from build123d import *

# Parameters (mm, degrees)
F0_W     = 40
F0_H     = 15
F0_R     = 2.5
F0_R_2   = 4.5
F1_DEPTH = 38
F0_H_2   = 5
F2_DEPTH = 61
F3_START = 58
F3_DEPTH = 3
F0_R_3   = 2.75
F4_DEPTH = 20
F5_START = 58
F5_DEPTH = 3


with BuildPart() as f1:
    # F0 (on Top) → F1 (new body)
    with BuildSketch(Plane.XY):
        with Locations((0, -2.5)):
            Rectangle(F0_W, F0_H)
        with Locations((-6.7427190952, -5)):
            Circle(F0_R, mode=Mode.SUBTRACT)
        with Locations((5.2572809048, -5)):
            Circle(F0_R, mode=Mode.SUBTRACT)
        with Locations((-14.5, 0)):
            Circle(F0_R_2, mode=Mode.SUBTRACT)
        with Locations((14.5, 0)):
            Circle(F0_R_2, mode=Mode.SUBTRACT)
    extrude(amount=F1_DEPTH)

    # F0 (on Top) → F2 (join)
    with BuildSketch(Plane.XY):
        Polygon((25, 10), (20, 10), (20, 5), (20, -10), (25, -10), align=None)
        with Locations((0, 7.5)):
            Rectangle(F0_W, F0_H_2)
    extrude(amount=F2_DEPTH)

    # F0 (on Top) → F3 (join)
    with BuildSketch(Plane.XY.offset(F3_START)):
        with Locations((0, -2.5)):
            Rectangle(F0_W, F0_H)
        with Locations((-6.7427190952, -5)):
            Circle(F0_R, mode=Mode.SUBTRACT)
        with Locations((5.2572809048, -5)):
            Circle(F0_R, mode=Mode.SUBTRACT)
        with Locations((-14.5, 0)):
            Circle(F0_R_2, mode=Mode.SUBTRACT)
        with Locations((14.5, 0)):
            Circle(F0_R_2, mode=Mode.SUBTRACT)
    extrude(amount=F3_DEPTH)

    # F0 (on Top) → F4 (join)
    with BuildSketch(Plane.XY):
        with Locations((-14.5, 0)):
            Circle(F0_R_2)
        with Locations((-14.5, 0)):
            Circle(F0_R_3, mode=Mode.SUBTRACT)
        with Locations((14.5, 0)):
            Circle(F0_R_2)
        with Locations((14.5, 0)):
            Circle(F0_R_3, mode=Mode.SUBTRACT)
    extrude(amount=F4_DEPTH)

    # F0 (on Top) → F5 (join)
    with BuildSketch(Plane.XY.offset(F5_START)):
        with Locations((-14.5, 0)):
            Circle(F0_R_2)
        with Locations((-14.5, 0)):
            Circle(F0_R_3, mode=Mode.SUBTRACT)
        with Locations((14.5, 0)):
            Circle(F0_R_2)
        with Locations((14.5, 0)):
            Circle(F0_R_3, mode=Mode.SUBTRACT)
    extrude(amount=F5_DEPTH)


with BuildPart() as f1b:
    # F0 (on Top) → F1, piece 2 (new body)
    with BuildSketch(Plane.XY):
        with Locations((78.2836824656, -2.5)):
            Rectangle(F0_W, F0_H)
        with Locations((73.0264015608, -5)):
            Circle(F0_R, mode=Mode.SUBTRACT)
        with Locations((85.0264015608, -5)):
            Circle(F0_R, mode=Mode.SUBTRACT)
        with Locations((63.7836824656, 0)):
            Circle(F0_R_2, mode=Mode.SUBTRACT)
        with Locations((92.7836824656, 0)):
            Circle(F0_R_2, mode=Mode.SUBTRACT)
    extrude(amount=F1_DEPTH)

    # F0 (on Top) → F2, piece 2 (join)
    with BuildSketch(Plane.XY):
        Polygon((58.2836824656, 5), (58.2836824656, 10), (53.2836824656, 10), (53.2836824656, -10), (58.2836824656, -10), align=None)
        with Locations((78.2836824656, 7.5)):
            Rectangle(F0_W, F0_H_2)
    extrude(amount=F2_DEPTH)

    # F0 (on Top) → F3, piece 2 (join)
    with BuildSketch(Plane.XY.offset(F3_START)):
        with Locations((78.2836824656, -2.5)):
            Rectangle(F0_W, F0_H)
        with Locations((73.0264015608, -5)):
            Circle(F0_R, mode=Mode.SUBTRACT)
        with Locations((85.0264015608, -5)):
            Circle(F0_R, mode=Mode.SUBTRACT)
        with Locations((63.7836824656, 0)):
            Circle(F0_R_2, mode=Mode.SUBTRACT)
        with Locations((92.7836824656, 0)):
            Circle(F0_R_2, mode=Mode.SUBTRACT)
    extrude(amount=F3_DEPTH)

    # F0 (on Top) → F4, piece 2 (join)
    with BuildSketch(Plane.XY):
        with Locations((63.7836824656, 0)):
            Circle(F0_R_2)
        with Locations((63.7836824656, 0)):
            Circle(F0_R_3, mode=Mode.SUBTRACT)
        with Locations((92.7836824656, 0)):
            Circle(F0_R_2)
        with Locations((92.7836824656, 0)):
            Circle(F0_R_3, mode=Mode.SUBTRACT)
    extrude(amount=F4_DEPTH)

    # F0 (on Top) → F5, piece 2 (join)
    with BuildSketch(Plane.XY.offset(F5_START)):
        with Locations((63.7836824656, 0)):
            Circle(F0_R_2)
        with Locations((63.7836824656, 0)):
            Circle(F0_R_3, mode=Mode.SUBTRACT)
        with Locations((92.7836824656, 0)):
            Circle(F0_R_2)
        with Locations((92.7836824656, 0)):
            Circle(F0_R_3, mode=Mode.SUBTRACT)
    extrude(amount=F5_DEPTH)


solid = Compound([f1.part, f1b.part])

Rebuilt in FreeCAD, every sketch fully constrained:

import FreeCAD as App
import Part
import Sketcher
from FreeCAD import Vector
Q = App.Units.Quantity


def add_polygon(sketch, points):
    """Adds a closed chain of lines whose ends are joined by coincident constraints."""
    first, n = sketch.GeometryCount, len(points)
    for a, b in zip(points, points[1:] + points[:1]):
        sketch.addGeometry(Part.LineSegment(App.Vector(*a, 0), App.Vector(*b, 0)), False)
    for i in range(n):
        sketch.addConstraint(Sketcher.Constraint("Coincident", first + i, 2, first + (i + 1) % n, 1))

doc = App.newDocument("Part")
body = doc.addObject("PartDesign::Body", "Body")

sketch1 = body.newObject("Sketcher::SketchObject", "Sketch")
sketch1.AttachmentSupport = (doc.getObject("XY_Plane"), [""])
sketch1.MapMode = "FlatFace"
add_polygon(sketch1, [(-20, 5), (-20, -10), (20, -10), (20, 5)])
sketch1.addGeometry(Part.Circle(Vector(-6.742719, -5, 0), Vector(0, 0, 1), 2.5), False)
sketch1.addGeometry(Part.Circle(Vector(5.257281, -5, 0), Vector(0, 0, 1), 2.5), False)
sketch1.addGeometry(Part.Circle(Vector(-14.5, 0, 0), Vector(0, 0, 1), 4.5), False)
sketch1.addGeometry(Part.Circle(Vector(14.5, 0, 0), Vector(0, 0, 1), 4.5), False)
sketch1.addConstraint(Sketcher.Constraint("Vertical", 0))
sketch1.addConstraint(Sketcher.Constraint("Horizontal", 1))
sketch1.addConstraint(Sketcher.Constraint("Vertical", 2))
sketch1.addConstraint(Sketcher.Constraint("Horizontal", 3))
sketch1.addConstraint(Sketcher.Constraint("Equal", 4, 5))
sketch1.addConstraint(Sketcher.Constraint("Equal", 6, 7))
sketch1.addConstraint(Sketcher.Constraint("Symmetric", 6, 3, 7, 3, -1, 1))
sketch1.addConstraint(Sketcher.Constraint("PointOnObject", 6, 3, -1))
sketch1.addConstraint(Sketcher.Constraint("Horizontal", 4, 3, 5, 3))
sketch1.addConstraint(Sketcher.Constraint("Diameter", 4, Q("5 mm")))
sketch1.addConstraint(Sketcher.Constraint("Diameter", 6, Q("9 mm")))
sketch1.addConstraint(Sketcher.Constraint("DistanceX", 1, 1, 1, 2, Q("40 mm")))
sketch1.addConstraint(Sketcher.Constraint("DistanceY", 0, 2, 0, 1, Q("15 mm")))
sketch1.addConstraint(Sketcher.Constraint("DistanceY", 4, 3, -1, 1, Q("5 mm")))
sketch1.addConstraint(Sketcher.Constraint("DistanceX", 0, 2, -1, 1, Q("20 mm")))
sketch1.addConstraint(Sketcher.Constraint("DistanceY", 0, 2, -1, 1, Q("10 mm")))
sketch1.addConstraint(Sketcher.Constraint("DistanceX", 4, 3, 5, 3, Q("12 mm")))
sketch1.addConstraint(Sketcher.Constraint("DistanceX", 6, 3, 7, 3, Q("29 mm")))
sketch1.addConstraint(Sketcher.Constraint("DistanceX", 4, 3, -1, 1, Q("6.742719 mm")))
pad1 = body.newObject("PartDesign::Pad", "Pad")
pad1.Profile = sketch1
pad1.Length = 38

sketch2 = body.newObject("Sketcher::SketchObject", "Sketch001")
sketch2.AttachmentSupport = (doc.getObject("XY_Plane"), [""])
sketch2.MapMode = "FlatFace"
add_polygon(sketch2, [(25, 10), (-20, 10), (-20, 5), (20, 5), (20, -10), (25, -10)])
sketch2.addConstraint(Sketcher.Constraint("Horizontal", 0))
sketch2.addConstraint(Sketcher.Constraint("Vertical", 1))
sketch2.addConstraint(Sketcher.Constraint("Horizontal", 2))
sketch2.addConstraint(Sketcher.Constraint("Vertical", 3))
sketch2.addConstraint(Sketcher.Constraint("Horizontal", 4))
sketch2.addConstraint(Sketcher.Constraint("Vertical", 5))
sketch2.addConstraint(Sketcher.Constraint("Symmetric", 0, 2, 3, 2, -1, 1))
sketch2.addConstraint(Sketcher.Constraint("Equal", 4, 1))
sketch2.addConstraint(Sketcher.Constraint("DistanceX", 0, 2, 0, 1, Q("45 mm")))
sketch2.addConstraint(Sketcher.Constraint("DistanceX", 2, 1, 2, 2, Q("40 mm")))
sketch2.addConstraint(Sketcher.Constraint("DistanceY", 3, 2, 3, 1, Q("15 mm")))
pad2 = body.newObject("PartDesign::Pad", "Pad001")
pad2.Profile = sketch2
pad2.Length = 61

sketch3 = body.newObject("Sketcher::SketchObject", "Sketch002")
sketch3.AttachmentSupport = (doc.getObject("XY_Plane"), [""])
sketch3.MapMode = "FlatFace"
sketch3.AttachmentOffset = App.Placement(Vector(0, 0, 58), App.Rotation())
add_polygon(sketch3, [(-20, 5), (-20, -10), (20, -10), (20, 5)])
sketch3.addGeometry(Part.Circle(Vector(-6.742719, -5, 0), Vector(0, 0, 1), 2.5), False)
sketch3.addGeometry(Part.Circle(Vector(5.257281, -5, 0), Vector(0, 0, 1), 2.5), False)
sketch3.addGeometry(Part.Circle(Vector(-14.5, 0, 0), Vector(0, 0, 1), 4.5), False)
sketch3.addGeometry(Part.Circle(Vector(14.5, 0, 0), Vector(0, 0, 1), 4.5), False)
sketch3.addConstraint(Sketcher.Constraint("Vertical", 0))
sketch3.addConstraint(Sketcher.Constraint("Horizontal", 1))
sketch3.addConstraint(Sketcher.Constraint("Vertical", 2))
sketch3.addConstraint(Sketcher.Constraint("Horizontal", 3))
sketch3.addConstraint(Sketcher.Constraint("Equal", 4, 5))
sketch3.addConstraint(Sketcher.Constraint("Equal", 6, 7))
sketch3.addConstraint(Sketcher.Constraint("Symmetric", 6, 3, 7, 3, -1, 1))
sketch3.addConstraint(Sketcher.Constraint("PointOnObject", 6, 3, -1))
sketch3.addConstraint(Sketcher.Constraint("Horizontal", 4, 3, 5, 3))
sketch3.addConstraint(Sketcher.Constraint("Diameter", 4, Q("5 mm")))
sketch3.addConstraint(Sketcher.Constraint("Diameter", 6, Q("9 mm")))
sketch3.addConstraint(Sketcher.Constraint("DistanceX", 1, 1, 1, 2, Q("40 mm")))
sketch3.addConstraint(Sketcher.Constraint("DistanceY", 0, 2, 0, 1, Q("15 mm")))
sketch3.addConstraint(Sketcher.Constraint("DistanceY", 4, 3, -1, 1, Q("5 mm")))
sketch3.addConstraint(Sketcher.Constraint("DistanceX", 0, 2, -1, 1, Q("20 mm")))
sketch3.addConstraint(Sketcher.Constraint("DistanceY", 0, 2, -1, 1, Q("10 mm")))
sketch3.addConstraint(Sketcher.Constraint("DistanceX", 4, 3, 5, 3, Q("12 mm")))
sketch3.addConstraint(Sketcher.Constraint("DistanceX", 6, 3, 7, 3, Q("29 mm")))
sketch3.addConstraint(Sketcher.Constraint("DistanceX", 4, 3, -1, 1, Q("6.742719 mm")))
pad3 = body.newObject("PartDesign::Pad", "Pad002")
pad3.Profile = sketch3
pad3.Length = 3

sketch4 = body.newObject("Sketcher::SketchObject", "Sketch003")
sketch4.AttachmentSupport = (doc.getObject("XY_Plane"), [""])
sketch4.MapMode = "FlatFace"
sketch4.addGeometry(Part.Circle(Vector(-14.5, 0, 0), Vector(0, 0, 1), 4.5), False)
sketch4.addGeometry(Part.Circle(Vector(-14.5, 0, 0), Vector(0, 0, 1), 2.75), False)
sketch4.addGeometry(Part.Circle(Vector(14.5, 0, 0), Vector(0, 0, 1), 4.5), False)
sketch4.addGeometry(Part.Circle(Vector(14.5, 0, 0), Vector(0, 0, 1), 2.75), False)
sketch4.addConstraint(Sketcher.Constraint("Coincident", 1, 3, 0, 3))
sketch4.addConstraint(Sketcher.Constraint("Coincident", 3, 3, 2, 3))
sketch4.addConstraint(Sketcher.Constraint("Equal", 0, 2))
sketch4.addConstraint(Sketcher.Constraint("Equal", 1, 3))
sketch4.addConstraint(Sketcher.Constraint("Symmetric", 0, 3, 2, 3, -1, 1))
sketch4.addConstraint(Sketcher.Constraint("PointOnObject", 0, 3, -1))
sketch4.addConstraint(Sketcher.Constraint("Diameter", 0, Q("9 mm")))
sketch4.addConstraint(Sketcher.Constraint("Diameter", 1, Q("5.5 mm")))
sketch4.addConstraint(Sketcher.Constraint("DistanceX", 0, 3, 2, 3, Q("29 mm")))
pad4 = body.newObject("PartDesign::Pad", "Pad003")
pad4.Profile = sketch4
pad4.Length = 20

sketch5 = body.newObject("Sketcher::SketchObject", "Sketch004")
sketch5.AttachmentSupport = (doc.getObject("XY_Plane"), [""])
sketch5.MapMode = "FlatFace"
sketch5.AttachmentOffset = App.Placement(Vector(0, 0, 58), App.Rotation())
sketch5.addGeometry(Part.Circle(Vector(-14.5, 0, 0), Vector(0, 0, 1), 4.5), False)
sketch5.addGeometry(Part.Circle(Vector(-14.5, 0, 0), Vector(0, 0, 1), 2.75), False)
sketch5.addGeometry(Part.Circle(Vector(14.5, 0, 0), Vector(0, 0, 1), 4.5), False)
sketch5.addGeometry(Part.Circle(Vector(14.5, 0, 0), Vector(0, 0, 1), 2.75), False)
sketch5.addConstraint(Sketcher.Constraint("Coincident", 1, 3, 0, 3))
sketch5.addConstraint(Sketcher.Constraint("Coincident", 3, 3, 2, 3))
sketch5.addConstraint(Sketcher.Constraint("Equal", 0, 2))
sketch5.addConstraint(Sketcher.Constraint("Equal", 1, 3))
sketch5.addConstraint(Sketcher.Constraint("Symmetric", 0, 3, 2, 3, -1, 1))
sketch5.addConstraint(Sketcher.Constraint("PointOnObject", 0, 3, -1))
sketch5.addConstraint(Sketcher.Constraint("Diameter", 0, Q("9 mm")))
sketch5.addConstraint(Sketcher.Constraint("Diameter", 1, Q("5.5 mm")))
sketch5.addConstraint(Sketcher.Constraint("DistanceX", 0, 3, 2, 3, Q("29 mm")))
pad5 = body.newObject("PartDesign::Pad", "Pad004")
pad5.Profile = sketch5
pad5.Length = 3
body2 = doc.addObject("PartDesign::Body", "Body001")

sketch6 = body2.newObject("Sketcher::SketchObject", "Sketch005")
sketch6.AttachmentSupport = (doc.getObject("XY_Plane001"), [""])
sketch6.MapMode = "FlatFace"
add_polygon(sketch6, [(58.283682, 5), (58.283682, -10), (98.283682, -10), (98.283682, 5)])
sketch6.addGeometry(Part.Circle(Vector(73.026402, -5, 0), Vector(0, 0, 1), 2.5), False)
sketch6.addGeometry(Part.Circle(Vector(85.026402, -5, 0), Vector(0, 0, 1), 2.5), False)
sketch6.addGeometry(Part.Circle(Vector(63.783682, 0, 0), Vector(0, 0, 1), 4.5), False)
sketch6.addGeometry(Part.Circle(Vector(92.783682, 0, 0), Vector(0, 0, 1), 4.5), False)
sketch6.addConstraint(Sketcher.Constraint("Vertical", 0))
sketch6.addConstraint(Sketcher.Constraint("Horizontal", 1))
sketch6.addConstraint(Sketcher.Constraint("Vertical", 2))
sketch6.addConstraint(Sketcher.Constraint("Horizontal", 3))
sketch6.addConstraint(Sketcher.Constraint("Equal", 4, 5))
sketch6.addConstraint(Sketcher.Constraint("Equal", 6, 7))
sketch6.addConstraint(Sketcher.Constraint("PointOnObject", 6, 3, -1))
sketch6.addConstraint(Sketcher.Constraint("PointOnObject", 7, 3, -1))
sketch6.addConstraint(Sketcher.Constraint("Horizontal", 4, 3, 5, 3))
sketch6.addConstraint(Sketcher.Constraint("Diameter", 4, Q("5 mm")))
sketch6.addConstraint(Sketcher.Constraint("Diameter", 6, Q("9 mm")))
sketch6.addConstraint(Sketcher.Constraint("DistanceX", 1, 1, 1, 2, Q("40 mm")))
sketch6.addConstraint(Sketcher.Constraint("DistanceY", 0, 2, 0, 1, Q("15 mm")))
sketch6.addConstraint(Sketcher.Constraint("DistanceY", 4, 3, -1, 1, Q("5 mm")))
sketch6.addConstraint(Sketcher.Constraint("DistanceY", 0, 2, -1, 1, Q("10 mm")))
sketch6.addConstraint(Sketcher.Constraint("DistanceX", 4, 3, 5, 3, Q("12 mm")))
sketch6.addConstraint(Sketcher.Constraint("DistanceX", 6, 3, 7, 3, Q("29 mm")))
sketch6.addConstraint(Sketcher.Constraint("DistanceX", 0, 2, 6, 3, Q("5.5 mm")))
sketch6.addConstraint(Sketcher.Constraint("DistanceX", -1, 1, 4, 3, Q("73.026402 mm")))
sketch6.addConstraint(Sketcher.Constraint("DistanceX", 6, 3, 4, 3, Q("9.242719 mm")))
pad6 = body2.newObject("PartDesign::Pad", "Pad005")
pad6.Profile = sketch6
pad6.Length = 38

sketch7 = body2.newObject("Sketcher::SketchObject", "Sketch006")
sketch7.AttachmentSupport = (doc.getObject("XY_Plane001"), [""])
sketch7.MapMode = "FlatFace"
add_polygon(sketch7, [(53.283682, 10), (53.283682, -10), (58.283682, -10), (58.283682, 5), (98.283682, 5), (98.283682, 10)])
sketch7.addConstraint(Sketcher.Constraint("Vertical", 0))
sketch7.addConstraint(Sketcher.Constraint("Horizontal", 1))
sketch7.addConstraint(Sketcher.Constraint("Vertical", 2))
sketch7.addConstraint(Sketcher.Constraint("Horizontal", 3))
sketch7.addConstraint(Sketcher.Constraint("Vertical", 4))
sketch7.addConstraint(Sketcher.Constraint("Horizontal", 5))
sketch7.addConstraint(Sketcher.Constraint("Equal", 1, 4))
sketch7.addConstraint(Sketcher.Constraint("DistanceX", 1, 1, 1, 2, Q("5 mm")))
sketch7.addConstraint(Sketcher.Constraint("DistanceX", 3, 1, 3, 2, Q("40 mm")))
sketch7.addConstraint(Sketcher.Constraint("DistanceY", 0, 2, 0, 1, Q("20 mm")))
sketch7.addConstraint(Sketcher.Constraint("DistanceY", 0, 2, -1, 1, Q("10 mm")))
sketch7.addConstraint(Sketcher.Constraint("DistanceX", -1, 1, 0, 2, Q("53.283682 mm")))
pad7 = body2.newObject("PartDesign::Pad", "Pad006")
pad7.Profile = sketch7
pad7.Length = 61

sketch8 = body2.newObject("Sketcher::SketchObject", "Sketch007")
sketch8.AttachmentSupport = (doc.getObject("XY_Plane001"), [""])
sketch8.MapMode = "FlatFace"
sketch8.AttachmentOffset = App.Placement(Vector(0, 0, 58), App.Rotation())
add_polygon(sketch8, [(58.283682, 5), (58.283682, -10), (98.283682, -10), (98.283682, 5)])
sketch8.addGeometry(Part.Circle(Vector(73.026402, -5, 0), Vector(0, 0, 1), 2.5), False)
sketch8.addGeometry(Part.Circle(Vector(85.026402, -5, 0), Vector(0, 0, 1), 2.5), False)
sketch8.addGeometry(Part.Circle(Vector(63.783682, 0, 0), Vector(0, 0, 1), 4.5), False)
sketch8.addGeometry(Part.Circle(Vector(92.783682, 0, 0), Vector(0, 0, 1), 4.5), False)
sketch8.addConstraint(Sketcher.Constraint("Vertical", 0))
sketch8.addConstraint(Sketcher.Constraint("Horizontal", 1))
sketch8.addConstraint(Sketcher.Constraint("Vertical", 2))
sketch8.addConstraint(Sketcher.Constraint("Horizontal", 3))
sketch8.addConstraint(Sketcher.Constraint("Equal", 4, 5))
sketch8.addConstraint(Sketcher.Constraint("Equal", 6, 7))
sketch8.addConstraint(Sketcher.Constraint("PointOnObject", 6, 3, -1))
sketch8.addConstraint(Sketcher.Constraint("PointOnObject", 7, 3, -1))
sketch8.addConstraint(Sketcher.Constraint("Horizontal", 4, 3, 5, 3))
sketch8.addConstraint(Sketcher.Constraint("Diameter", 4, Q("5 mm")))
sketch8.addConstraint(Sketcher.Constraint("Diameter", 6, Q("9 mm")))
sketch8.addConstraint(Sketcher.Constraint("DistanceX", 1, 1, 1, 2, Q("40 mm")))
sketch8.addConstraint(Sketcher.Constraint("DistanceY", 0, 2, 0, 1, Q("15 mm")))
sketch8.addConstraint(Sketcher.Constraint("DistanceY", 4, 3, -1, 1, Q("5 mm")))
sketch8.addConstraint(Sketcher.Constraint("DistanceY", 0, 2, -1, 1, Q("10 mm")))
sketch8.addConstraint(Sketcher.Constraint("DistanceX", 4, 3, 5, 3, Q("12 mm")))
sketch8.addConstraint(Sketcher.Constraint("DistanceX", 6, 3, 7, 3, Q("29 mm")))
sketch8.addConstraint(Sketcher.Constraint("DistanceX", 0, 2, 6, 3, Q("5.5 mm")))
sketch8.addConstraint(Sketcher.Constraint("DistanceX", -1, 1, 4, 3, Q("73.026402 mm")))
sketch8.addConstraint(Sketcher.Constraint("DistanceX", 6, 3, 4, 3, Q("9.242719 mm")))
pad8 = body2.newObject("PartDesign::Pad", "Pad007")
pad8.Profile = sketch8
pad8.Length = 3

sketch9 = body2.newObject("Sketcher::SketchObject", "Sketch008")
sketch9.AttachmentSupport = (doc.getObject("XY_Plane001"), [""])
sketch9.MapMode = "FlatFace"
sketch9.addGeometry(Part.Circle(Vector(63.783682, 0, 0), Vector(0, 0, 1), 4.5), False)
sketch9.addGeometry(Part.Circle(Vector(63.783682, 0, 0), Vector(0, 0, 1), 2.75), False)
sketch9.addGeometry(Part.Circle(Vector(92.783682, 0, 0), Vector(0, 0, 1), 4.5), False)
sketch9.addGeometry(Part.Circle(Vector(92.783682, 0, 0), Vector(0, 0, 1), 2.75), False)
sketch9.addConstraint(Sketcher.Constraint("Coincident", 1, 3, 0, 3))
sketch9.addConstraint(Sketcher.Constraint("Coincident", 3, 3, 2, 3))
sketch9.addConstraint(Sketcher.Constraint("Equal", 0, 2))
sketch9.addConstraint(Sketcher.Constraint("Equal", 1, 3))
sketch9.addConstraint(Sketcher.Constraint("PointOnObject", 0, 3, -1))
sketch9.addConstraint(Sketcher.Constraint("PointOnObject", 2, 3, -1))
sketch9.addConstraint(Sketcher.Constraint("Diameter", 0, Q("9 mm")))
sketch9.addConstraint(Sketcher.Constraint("Diameter", 1, Q("5.5 mm")))
sketch9.addConstraint(Sketcher.Constraint("DistanceX", 0, 3, 2, 3, Q("29 mm")))
sketch9.addConstraint(Sketcher.Constraint("DistanceX", -1, 1, 0, 3, Q("63.783682 mm")))
pad9 = body2.newObject("PartDesign::Pad", "Pad008")
pad9.Profile = sketch9
pad9.Length = 20

sketch10 = body2.newObject("Sketcher::SketchObject", "Sketch009")
sketch10.AttachmentSupport = (doc.getObject("XY_Plane001"), [""])
sketch10.MapMode = "FlatFace"
sketch10.AttachmentOffset = App.Placement(Vector(0, 0, 58), App.Rotation())
sketch10.addGeometry(Part.Circle(Vector(63.783682, 0, 0), Vector(0, 0, 1), 4.5), False)
sketch10.addGeometry(Part.Circle(Vector(63.783682, 0, 0), Vector(0, 0, 1), 2.75), False)
sketch10.addGeometry(Part.Circle(Vector(92.783682, 0, 0), Vector(0, 0, 1), 4.5), False)
sketch10.addGeometry(Part.Circle(Vector(92.783682, 0, 0), Vector(0, 0, 1), 2.75), False)
sketch10.addConstraint(Sketcher.Constraint("Coincident", 1, 3, 0, 3))
sketch10.addConstraint(Sketcher.Constraint("Coincident", 3, 3, 2, 3))
sketch10.addConstraint(Sketcher.Constraint("Equal", 0, 2))
sketch10.addConstraint(Sketcher.Constraint("Equal", 1, 3))
sketch10.addConstraint(Sketcher.Constraint("PointOnObject", 0, 3, -1))
sketch10.addConstraint(Sketcher.Constraint("PointOnObject", 2, 3, -1))
sketch10.addConstraint(Sketcher.Constraint("Diameter", 0, Q("9 mm")))
sketch10.addConstraint(Sketcher.Constraint("Diameter", 1, Q("5.5 mm")))
sketch10.addConstraint(Sketcher.Constraint("DistanceX", 0, 3, 2, 3, Q("29 mm")))
sketch10.addConstraint(Sketcher.Constraint("DistanceX", -1, 1, 0, 3, Q("63.783682 mm")))
pad10 = body2.newObject("PartDesign::Pad", "Pad009")
pad10.Profile = sketch10
pad10.Length = 3

doc.recompute()
